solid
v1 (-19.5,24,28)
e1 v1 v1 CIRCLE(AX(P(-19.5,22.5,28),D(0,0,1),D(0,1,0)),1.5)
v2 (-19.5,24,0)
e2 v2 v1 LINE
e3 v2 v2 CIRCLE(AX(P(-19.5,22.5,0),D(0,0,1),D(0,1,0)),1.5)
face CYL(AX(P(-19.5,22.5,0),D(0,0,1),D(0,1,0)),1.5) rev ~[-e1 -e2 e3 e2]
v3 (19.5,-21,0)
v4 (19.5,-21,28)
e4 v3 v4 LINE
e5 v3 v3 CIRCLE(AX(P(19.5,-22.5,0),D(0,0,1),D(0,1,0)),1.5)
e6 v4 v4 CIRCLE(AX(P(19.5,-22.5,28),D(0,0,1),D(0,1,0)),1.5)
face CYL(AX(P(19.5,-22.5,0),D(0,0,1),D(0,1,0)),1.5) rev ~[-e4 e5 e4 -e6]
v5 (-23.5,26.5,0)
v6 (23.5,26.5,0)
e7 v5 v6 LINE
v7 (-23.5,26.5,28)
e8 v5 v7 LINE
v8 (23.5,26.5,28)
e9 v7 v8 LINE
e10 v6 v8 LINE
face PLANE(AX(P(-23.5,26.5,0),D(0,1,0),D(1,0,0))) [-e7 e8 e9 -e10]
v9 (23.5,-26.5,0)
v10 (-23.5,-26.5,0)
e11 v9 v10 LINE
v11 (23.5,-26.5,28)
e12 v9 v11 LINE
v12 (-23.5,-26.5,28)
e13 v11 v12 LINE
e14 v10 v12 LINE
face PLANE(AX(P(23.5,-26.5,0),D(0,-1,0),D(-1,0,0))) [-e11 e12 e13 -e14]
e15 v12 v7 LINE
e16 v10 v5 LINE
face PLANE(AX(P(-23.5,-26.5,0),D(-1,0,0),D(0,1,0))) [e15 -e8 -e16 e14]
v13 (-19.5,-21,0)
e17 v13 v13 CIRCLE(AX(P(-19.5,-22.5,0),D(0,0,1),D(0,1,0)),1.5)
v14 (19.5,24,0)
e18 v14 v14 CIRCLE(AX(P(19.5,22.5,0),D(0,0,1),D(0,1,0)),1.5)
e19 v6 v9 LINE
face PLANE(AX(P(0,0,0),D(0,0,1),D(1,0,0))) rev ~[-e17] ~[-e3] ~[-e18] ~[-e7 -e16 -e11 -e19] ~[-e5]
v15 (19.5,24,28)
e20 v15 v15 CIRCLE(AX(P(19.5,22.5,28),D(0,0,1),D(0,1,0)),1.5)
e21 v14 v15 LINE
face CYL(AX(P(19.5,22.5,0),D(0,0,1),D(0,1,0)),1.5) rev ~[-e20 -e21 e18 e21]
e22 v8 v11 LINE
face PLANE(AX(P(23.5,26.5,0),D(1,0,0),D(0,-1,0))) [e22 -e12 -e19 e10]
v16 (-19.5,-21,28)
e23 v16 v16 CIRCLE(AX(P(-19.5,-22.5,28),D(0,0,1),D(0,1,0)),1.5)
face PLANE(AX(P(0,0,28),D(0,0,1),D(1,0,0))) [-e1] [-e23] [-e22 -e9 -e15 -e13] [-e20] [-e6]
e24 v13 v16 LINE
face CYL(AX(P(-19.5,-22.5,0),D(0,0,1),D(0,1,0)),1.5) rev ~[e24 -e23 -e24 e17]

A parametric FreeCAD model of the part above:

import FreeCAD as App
import Part
import Sketcher

V = App.Vector


def add_polygon(sketch, points):
    """Adds a closed chain of lines whose ends are joined by coincident constraints."""
    first, n = sketch.GeometryCount, len(points)
    for a, b in zip(points, points[1:] + points[:1]):
        sketch.addGeometry(Part.LineSegment(App.Vector(*a, 0), App.Vector(*b, 0)), False)
    for i in range(n):
        sketch.addConstraint(Sketcher.Constraint("Coincident", first + i, 2, first + (i + 1) % n, 1))

doc = App.newDocument("Part")
body = doc.addObject("PartDesign::Body", "Body")

# Sketch on XY plane
sketch1 = doc.addObject("Sketcher::SketchObject", "Sketch")
body.addObject(sketch1)
sketch1.AttachmentSupport = (doc.XY_Plane, [""])
sketch1.MapMode = "FlatFace"
add_polygon(sketch1, [(24, 26), (-24, 26), (-24, -26), (24, -26)])  # lines 0-3
sketch1.addConstraint(Sketcher.Constraint("Horizontal", 0))
sketch1.addConstraint(Sketcher.Constraint("Vertical", 1))
sketch1.addConstraint(Sketcher.Constraint("Horizontal", 2))
sketch1.addConstraint(Sketcher.Constraint("Vertical", 3))
sketch1.addConstraint(Sketcher.Constraint("Symmetric", 0, 2, 2, 2, -1, 1))
sketch1.addConstraint(Sketcher.Constraint("DistanceX", 0, 2, 0, 1, 47.0))
sketch1.addConstraint(Sketcher.Constraint("DistanceY", 1, 2, 1, 1, 53.0))
pad1 = doc.addObject("PartDesign::Pad", "Pad")
body.addObject(pad1)
pad1.Profile = sketch1
pad1.Length = 28

# Sketch on XY plane
sketch2 = doc.addObject("Sketcher::SketchObject", "Sketch001")
body.addObject(sketch2)
sketch2.AttachmentSupport = (doc.XY_Plane, [""])
sketch2.MapMode = "FlatFace"
sketch2.addGeometry(Part.Circle(V(-19.5, -22.5, 0), V(0, 0, 1), 1.5), False)
sketch2.addGeometry(Part.Circle(V(-19.5, 22.5, 0), V(0, 0, 1), 1.5), False)
sketch2.addGeometry(Part.Circle(V(19.5, 22.5, 0), V(0, 0, 1), 1.5), False)
sketch2.addGeometry(Part.Circle(V(19.5, -22.5, 0), V(0, 0, 1), 1.5), False)
sketch2.addConstraint(Sketcher.Constraint("Equal", 0, 1))
sketch2.addConstraint(Sketcher.Constraint("Equal", 1, 2))
sketch2.addConstraint(Sketcher.Constraint("Equal", 2, 3))
sketch2.addConstraint(Sketcher.Constraint("Symmetric", 0, 3, 2, 3, -1, 1))
sketch2.addConstraint(Sketcher.Constraint("Symmetric", 1, 3, 3, 3, -1, 1))
sketch2.addConstraint(Sketcher.Constraint("Symmetric", 1, 3, 2, 3, -2))
sketch2.addConstraint(Sketcher.Constraint("Diameter", 0, 3.0))
sketch2.addConstraint(Sketcher.Constraint("DistanceY", 0, 3, 1, 3, 45.0))
sketch2.addConstraint(Sketcher.Constraint("DistanceX", 1, 3, 2, 3, 39.0))
doc.recompute()
hole = doc.addObject("PartDesign::Hole", "Hole")
body.addObject(hole)
hole.Profile = sketch2
hole.ThreadType = "None"
hole.Diameter = 3
hole.DepthType = "ThroughAll"
hole.Reversed = True

doc.recompute()
